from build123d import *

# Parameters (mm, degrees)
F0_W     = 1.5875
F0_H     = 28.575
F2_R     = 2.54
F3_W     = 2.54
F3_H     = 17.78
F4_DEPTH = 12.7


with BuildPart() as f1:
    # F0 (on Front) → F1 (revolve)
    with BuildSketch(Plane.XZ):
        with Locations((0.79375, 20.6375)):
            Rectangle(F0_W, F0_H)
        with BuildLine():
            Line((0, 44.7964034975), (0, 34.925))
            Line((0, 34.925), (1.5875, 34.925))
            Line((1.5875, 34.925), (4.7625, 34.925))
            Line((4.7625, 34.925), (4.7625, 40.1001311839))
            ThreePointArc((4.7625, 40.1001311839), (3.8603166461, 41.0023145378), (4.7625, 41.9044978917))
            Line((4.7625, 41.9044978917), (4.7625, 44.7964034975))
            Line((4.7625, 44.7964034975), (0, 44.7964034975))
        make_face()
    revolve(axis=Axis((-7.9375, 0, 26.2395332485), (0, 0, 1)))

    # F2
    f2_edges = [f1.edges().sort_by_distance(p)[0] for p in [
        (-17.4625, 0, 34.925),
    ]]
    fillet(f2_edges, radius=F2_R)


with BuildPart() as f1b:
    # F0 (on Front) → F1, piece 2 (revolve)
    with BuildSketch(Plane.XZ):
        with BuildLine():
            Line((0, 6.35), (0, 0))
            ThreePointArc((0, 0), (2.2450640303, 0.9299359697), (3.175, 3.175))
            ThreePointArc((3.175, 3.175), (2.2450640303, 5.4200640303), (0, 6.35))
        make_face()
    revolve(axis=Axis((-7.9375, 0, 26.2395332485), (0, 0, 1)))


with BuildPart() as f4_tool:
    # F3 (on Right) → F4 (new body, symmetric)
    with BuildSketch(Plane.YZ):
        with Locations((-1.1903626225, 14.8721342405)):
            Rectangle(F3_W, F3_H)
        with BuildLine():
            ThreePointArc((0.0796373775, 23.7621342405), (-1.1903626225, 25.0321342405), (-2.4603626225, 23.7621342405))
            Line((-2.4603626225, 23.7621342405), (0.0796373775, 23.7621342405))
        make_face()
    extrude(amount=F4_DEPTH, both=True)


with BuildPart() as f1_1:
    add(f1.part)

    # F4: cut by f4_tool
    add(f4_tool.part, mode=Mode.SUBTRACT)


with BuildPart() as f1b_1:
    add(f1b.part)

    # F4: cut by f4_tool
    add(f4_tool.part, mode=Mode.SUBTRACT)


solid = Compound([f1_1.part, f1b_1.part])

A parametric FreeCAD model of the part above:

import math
import FreeCAD as App
import Part
import Sketcher
Q = App.Units.Quantity


def edges_at(feature, points):
    """Names of the edges that pass closest to the given points."""
    edges = feature.Shape.Edges
    near = lambda p: min(range(len(edges)), key=lambda i: edges[i].distToShape(Part.Vertex(*p))[0])
    return sorted({f"Edge{near(p) + 1}" for p in points})

doc = App.newDocument("Part")
body = doc.addObject("PartDesign::Body", "Body")

# Sketch on XZ plane
sketch1 = doc.addObject("Sketcher::SketchObject", "Sketch")
body.addObject(sketch1)
sketch1.AttachmentSupport = (doc.XZ_Plane, [""])
sketch1.MapMode = "FlatFace"
sketch1.addGeometry(Part.LineSegment(App.Vector(0, 6.35, 0), App.Vector(1.5875, 6.35, 0)), False)
sketch1.addGeometry(Part.LineSegment(App.Vector(1.5875, 6.35, 0), App.Vector(1.5875, 34.925, 0)), False)
sketch1.addGeometry(Part.LineSegment(App.Vector(1.5875, 34.925, 0), App.Vector(4.7625, 34.925, 0)), False)
sketch1.addGeometry(Part.LineSegment(App.Vector(4.7625, 34.925, 0), App.Vector(4.7625, 40.100131, 0)), False)
sketch1.addGeometry(Part.ArcOfCircle(Part.Circle(App.Vector(4.7625, 41.002315, 0), App.Vector(0, 0, 1), 0.902183), math.radians(90), math.radians(270)), False)
sketch1.addGeometry(Part.LineSegment(App.Vector(4.7625, 41.904498, 0), App.Vector(4.7625, 44.796403, 0)), False)
sketch1.addGeometry(Part.LineSegment(App.Vector(4.7625, 44.796403, 0), App.Vector(0, 44.796403, 0)), False)
sketch1.addGeometry(Part.LineSegment(App.Vector(0, 44.796403, 0), App.Vector(0, 6.35, 0)), False)
sketch1.addGeometry(Part.LineSegment(App.Vector(-7.9375, 6.35, 0), App.Vector(-7.9375, 44.796403, 0)), True)  # axis
sketch1.addConstraint(Sketcher.Constraint("Coincident", 0, 2, 1, 1))
sketch1.addConstraint(Sketcher.Constraint("Coincident", 1, 2, 2, 1))
sketch1.addConstraint(Sketcher.Constraint("Coincident", 2, 2, 3, 1))
sketch1.addConstraint(Sketcher.Constraint("Coincident", 3, 2, 4, 2))
sketch1.addConstraint(Sketcher.Constraint("Coincident", 4, 1, 5, 1))
sketch1.addConstraint(Sketcher.Constraint("Coincident", 5, 2, 6, 1))
sketch1.addConstraint(Sketcher.Constraint("Coincident", 6, 2, 7, 1))
sketch1.addConstraint(Sketcher.Constraint("Coincident", 7, 2, 0, 1))
sketch1.addConstraint(Sketcher.Constraint("Horizontal", 0))
sketch1.addConstraint(Sketcher.Constraint("Vertical", 1))
sketch1.addConstraint(Sketcher.Constraint("Horizontal", 2))
sketch1.addConstraint(Sketcher.Constraint("Vertical", 3))
sketch1.addConstraint(Sketcher.Constraint("Vertical", 5))
sketch1.addConstraint(Sketcher.Constraint("Horizontal", 6))
sketch1.addConstraint(Sketcher.Constraint("Vertical", 7))
sketch1.addConstraint(Sketcher.Constraint("Vertical", 8))
sketch1.addConstraint(Sketcher.Constraint("PointOnObject", 6, 2, -2))
sketch1.addConstraint(Sketcher.Constraint("Horizontal", 7, 2, 8, 1))
sketch1.addConstraint(Sketcher.Constraint("Horizontal", 6, 2, 8, 2))
sketch1.addConstraint(Sketcher.Constraint("Vertical", 4, 3, 2, 2))
sketch1.addConstraint(Sketcher.Constraint("Vertical", 3, 2, 4, 1))
sketch1.addConstraint(Sketcher.Constraint("DistanceX", 8, 1, 2, 2, Q("0.5 in")))
sketch1.addConstraint(Sketcher.Constraint("DistanceX", 0, 1, 0, 2, Q("0.0625 in")))
sketch1.addConstraint(Sketcher.Constraint("DistanceX", 2, 1, 2, 2, Q("0.125 in")))
sketch1.addConstraint(Sketcher.Constraint("DistanceY", 1, 1, 1, 2, Q("1.125 in")))
sketch1.addConstraint(Sketcher.Constraint("DistanceY", -1, 1, 0, 2, Q("0.25 in")))
sketch1.addConstraint(Sketcher.Constraint("Radius", 4, 0.902183))
sketch1.addConstraint(Sketcher.Constraint("DistanceY", 3, 1, 3, 2, 5.175131))
sketch1.addConstraint(Sketcher.Constraint("DistanceY", 5, 1, 5, 2, 2.891906))
revolution = doc.addObject("PartDesign::Revolution", "Revolution")
body.addObject(revolution)
revolution.Profile = sketch1
revolution.ReferenceAxis = (sketch1, ["Axis0"])
revolution.Angle = 360
doc.recompute()

fillet = doc.addObject("PartDesign::Fillet", "Fillet")
body.addObject(fillet)
fillet.Base = (revolution, edges_at(revolution, [(-17.462, 0, 34.925)]))
fillet.Radius = Q("0.1 in")
body2 = doc.addObject("PartDesign::Body", "Body001")

# Sketch on XZ plane
sketch2 = doc.addObject("Sketcher::SketchObject", "Sketch001")
body2.addObject(sketch2)
sketch2.AttachmentSupport = (doc.getObject("XZ_Plane001"), [""])
sketch2.MapMode = "FlatFace"
sketch2.addGeometry(Part.LineSegment(App.Vector(0, 6.35, 0), App.Vector(0, 0, 0)), False)
sketch2.addGeometry(Part.ArcOfCircle(Part.Circle(App.Vector(0, 3.175, 0), App.Vector(0, 0, 1), 3.175), math.radians(-90), math.radians(0)), False)
sketch2.addGeometry(Part.ArcOfCircle(Part.Circle(App.Vector(0, 3.175, 0), App.Vector(0, 0, 1), 3.175), math.radians(0), math.radians(90)), False)
sketch2.addGeometry(Part.LineSegment(App.Vector(-7.9375, 0, 0), App.Vector(-7.9375, 6.35, 0)), True)  # axis
sketch2.addConstraint(Sketcher.Constraint("Coincident", 0, 2, 1, 1))
sketch2.addConstraint(Sketcher.Constraint("Tangent", 1, 2, 2, 1))
sketch2.addConstraint(Sketcher.Constraint("Coincident", 2, 2, 0, 1))
sketch2.addConstraint(Sketcher.Constraint("Vertical", 0))
sketch2.addConstraint(Sketcher.Constraint("Vertical", 3))
sketch2.addConstraint(Sketcher.Constraint("Coincident", 0, 2, -1, 1))
sketch2.addConstraint(Sketcher.Constraint("Equal", 1, 2))
sketch2.addConstraint(Sketcher.Constraint("PointOnObject", 1, 3, -2))
sketch2.addConstraint(Sketcher.Constraint("PointOnObject", 3, 1, -1))
sketch2.addConstraint(Sketcher.Constraint("Horizontal", 2, 3, 1, 2))
sketch2.addConstraint(Sketcher.Constraint("Horizontal", 2, 2, 3, 2))
sketch2.addConstraint(Sketcher.Constraint("Radius", 1, Q("0.125 in")))
sketch2.addConstraint(Sketcher.Constraint("DistanceX", 3, 1, -1, 1, Q("0.3125 in")))
revolution2 = doc.addObject("PartDesign::Revolution", "Revolution001")
body2.addObject(revolution2)
revolution2.Profile = sketch2
revolution2.ReferenceAxis = (sketch2, ["Axis0"])
revolution2.Angle = 360
body3 = doc.addObject("PartDesign::Body", "Body002")

# Sketch on YZ plane
sketch3 = doc.addObject("Sketcher::SketchObject", "Sketch002")
body3.addObject(sketch3)
sketch3.AttachmentSupport = (doc.getObject("YZ_Plane002"), [""])
sketch3.MapMode = "FlatFace"
sketch3.addGeometry(Part.LineSegment(App.Vector(-2.460363, 23.762134, 0), App.Vector(-2.460363, 5.982134, 0)), False)
sketch3.addGeometry(Part.LineSegment(App.Vector(-2.460363, 5.982134, 0), App.Vector(0.079637, 5.982134, 0)), False)
sketch3.addGeometry(Part.LineSegment(App.Vector(0.079637, 5.982134, 0), App.Vector(0.079637, 23.762134, 0)), False)
sketch3.addGeometry(Part.ArcOfCircle(Part.Circle(App.Vector(-1.190363, 23.762134, 0), App.Vector(0, 0, 1), 1.27), math.radians(0), math.radians(180)), False)
sketch3.addConstraint(Sketcher.Constraint("Coincident", 0, 2, 1, 1))
sketch3.addConstraint(Sketcher.Constraint("Coincident", 1, 2, 2, 1))
sketch3.addConstraint(Sketcher.Constraint("Tangent", 2, 2, 3, 1))
sketch3.addConstraint(Sketcher.Constraint("Tangent", 3, 2, 0, 1))
sketch3.addConstraint(Sketcher.Constraint("Vertical", 0))
sketch3.addConstraint(Sketcher.Constraint("Horizontal", 1))
sketch3.addConstraint(Sketcher.Constraint("Vertical", 2))
sketch3.addConstraint(Sketcher.Constraint("Radius", 3, Q("0.05 in")))
sketch3.addConstraint(Sketcher.Constraint("DistanceY", 0, 2, 0, 1, Q("0.7 in")))
sketch3.addConstraint(Sketcher.Constraint("DistanceX", 3, 3, -1, 1, 1.190363))
sketch3.addConstraint(Sketcher.Constraint("DistanceY", -1, 1, 3, 3, 23.762134))
pad1 = doc.addObject("PartDesign::Pad", "Pad")
body3.addObject(pad1)
pad1.Profile = sketch3
pad1.Length = Q("1 in")
pad1.Midplane = True
doc.recompute()

body4 = doc.addObject("PartDesign::Body", "Body003")
body4.BaseFeature = body3
boolean = doc.addObject("PartDesign::Boolean", "Boolean")
body.addObject(boolean)
boolean.Type = "Cut"
boolean.addObjects([body4])
doc.recompute()

boolean2 = doc.addObject("PartDesign::Boolean", "Boolean001")
body2.addObject(boolean2)
boolean2.Type = "Cut"
boolean2.addObjects([body3])

doc.recompute()
